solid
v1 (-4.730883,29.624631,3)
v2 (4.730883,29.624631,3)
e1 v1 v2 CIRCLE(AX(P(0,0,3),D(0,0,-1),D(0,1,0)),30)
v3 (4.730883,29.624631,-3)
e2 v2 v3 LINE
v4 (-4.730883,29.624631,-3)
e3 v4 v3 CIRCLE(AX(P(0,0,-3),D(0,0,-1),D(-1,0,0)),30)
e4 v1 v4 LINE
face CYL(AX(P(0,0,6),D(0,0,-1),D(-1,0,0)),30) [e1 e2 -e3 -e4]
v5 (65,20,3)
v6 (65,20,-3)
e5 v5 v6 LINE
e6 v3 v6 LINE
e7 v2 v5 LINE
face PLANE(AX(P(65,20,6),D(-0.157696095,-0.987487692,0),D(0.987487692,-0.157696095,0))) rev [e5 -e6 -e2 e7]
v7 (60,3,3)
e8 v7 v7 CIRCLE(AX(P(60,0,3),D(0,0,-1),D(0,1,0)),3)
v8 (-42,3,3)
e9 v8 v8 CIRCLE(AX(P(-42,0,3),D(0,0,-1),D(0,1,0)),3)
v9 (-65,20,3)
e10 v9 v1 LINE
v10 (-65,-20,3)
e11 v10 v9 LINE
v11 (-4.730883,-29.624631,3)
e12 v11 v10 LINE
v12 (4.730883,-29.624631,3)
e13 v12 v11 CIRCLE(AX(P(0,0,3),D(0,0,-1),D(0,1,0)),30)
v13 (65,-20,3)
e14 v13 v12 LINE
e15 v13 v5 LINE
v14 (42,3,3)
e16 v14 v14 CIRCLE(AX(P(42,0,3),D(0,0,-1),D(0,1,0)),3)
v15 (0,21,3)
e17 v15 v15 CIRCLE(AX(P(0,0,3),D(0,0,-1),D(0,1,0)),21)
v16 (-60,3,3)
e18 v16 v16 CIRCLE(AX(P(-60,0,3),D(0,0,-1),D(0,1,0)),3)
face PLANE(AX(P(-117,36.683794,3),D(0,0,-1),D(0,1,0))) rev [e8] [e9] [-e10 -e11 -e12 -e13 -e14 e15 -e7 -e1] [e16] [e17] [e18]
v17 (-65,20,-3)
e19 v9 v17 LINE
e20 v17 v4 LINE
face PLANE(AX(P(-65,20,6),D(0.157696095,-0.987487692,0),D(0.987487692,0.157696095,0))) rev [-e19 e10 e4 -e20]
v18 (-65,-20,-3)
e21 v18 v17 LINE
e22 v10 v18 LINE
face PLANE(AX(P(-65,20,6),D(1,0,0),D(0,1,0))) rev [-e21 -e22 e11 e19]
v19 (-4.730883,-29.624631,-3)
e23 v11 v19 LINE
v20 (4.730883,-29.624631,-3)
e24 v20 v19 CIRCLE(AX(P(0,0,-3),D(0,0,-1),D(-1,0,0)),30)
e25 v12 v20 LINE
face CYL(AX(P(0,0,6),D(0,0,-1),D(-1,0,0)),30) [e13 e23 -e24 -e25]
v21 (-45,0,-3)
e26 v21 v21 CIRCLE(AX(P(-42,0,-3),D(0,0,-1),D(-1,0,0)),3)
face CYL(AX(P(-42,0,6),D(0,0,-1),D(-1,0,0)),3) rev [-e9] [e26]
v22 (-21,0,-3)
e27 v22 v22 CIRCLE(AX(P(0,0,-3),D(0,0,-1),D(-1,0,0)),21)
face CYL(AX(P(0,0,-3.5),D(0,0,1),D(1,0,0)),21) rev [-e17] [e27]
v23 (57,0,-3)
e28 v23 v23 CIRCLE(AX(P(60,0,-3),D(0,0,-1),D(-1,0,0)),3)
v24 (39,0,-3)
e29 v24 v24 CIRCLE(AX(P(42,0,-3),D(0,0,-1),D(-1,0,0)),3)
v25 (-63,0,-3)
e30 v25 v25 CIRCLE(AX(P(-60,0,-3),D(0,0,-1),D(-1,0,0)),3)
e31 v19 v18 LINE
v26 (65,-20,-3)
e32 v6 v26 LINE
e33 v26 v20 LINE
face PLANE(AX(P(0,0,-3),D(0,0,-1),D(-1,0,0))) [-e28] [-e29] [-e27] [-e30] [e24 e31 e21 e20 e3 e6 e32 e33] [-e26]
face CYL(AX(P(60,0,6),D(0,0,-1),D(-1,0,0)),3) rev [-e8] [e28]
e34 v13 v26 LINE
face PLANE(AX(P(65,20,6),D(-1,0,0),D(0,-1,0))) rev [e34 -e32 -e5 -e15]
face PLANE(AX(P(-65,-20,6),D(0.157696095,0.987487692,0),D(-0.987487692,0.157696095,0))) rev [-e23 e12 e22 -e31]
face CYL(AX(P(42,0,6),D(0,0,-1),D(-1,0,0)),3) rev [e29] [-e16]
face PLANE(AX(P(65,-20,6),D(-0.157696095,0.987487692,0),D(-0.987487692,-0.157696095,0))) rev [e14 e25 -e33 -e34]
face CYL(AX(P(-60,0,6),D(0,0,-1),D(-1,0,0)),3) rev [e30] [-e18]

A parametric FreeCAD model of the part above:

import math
import FreeCAD as App
import Part
import Sketcher

doc = App.newDocument("Part")
body = doc.addObject("PartDesign::Body", "Body")

sketch1 = body.newObject("Sketcher::SketchObject", "Sketch")
sketch1.AttachmentSupport = (doc.getObject("XY_Plane"), [""])
sketch1.MapMode = "FlatFace"
sketch1.addGeometry([
    Part.LineSegment(App.Vector(-65, 20, 0), App.Vector(-65, -20, 0)),
    Part.LineSegment(App.Vector(-65, -20, 0), App.Vector(-4.7, -29.6, 0)),
    Part.ArcOfCircle(Part.Circle(App.Vector(0, 0, 0), App.Vector(0, 0, 1), 30), math.radians(-99.07), math.radians(-80.93)),
    Part.LineSegment(App.Vector(4.7, -29.6, 0), App.Vector(65, -20, 0)),
    Part.LineSegment(App.Vector(65, -20, 0), App.Vector(65, 20, 0)),
    Part.LineSegment(App.Vector(65, 20, 0), App.Vector(4.7, 29.6, 0)),
    Part.ArcOfCircle(Part.Circle(App.Vector(0, 0, 0), App.Vector(0, 0, 1), 30), math.radians(80.93), math.radians(99.07)),
    Part.LineSegment(App.Vector(-4.7, 29.6, 0), App.Vector(-65, 20, 0)),
    Part.Circle(App.Vector(-60, 0, 0), App.Vector(0, 0, 1), 3),
    Part.Circle(App.Vector(60, 0, 0), App.Vector(0, 0, 1), 3),
    Part.Circle(App.Vector(-42, 0, 0), App.Vector(0, 0, 1), 3),
    Part.Circle(App.Vector(0, 0, 0), App.Vector(0, 0, 1), 16),
    Part.Circle(App.Vector(42, 0, 0), App.Vector(0, 0, 1), 3),
], False)
sketch1.addConstraint([
    Sketcher.Constraint("Coincident", 0, 2, 1, 1),
    Sketcher.Constraint("Tangent", 1, 2, 2, 1),
    Sketcher.Constraint("Tangent", 2, 2, 3, 1),
    Sketcher.Constraint("Coincident", 3, 2, 4, 1),
    Sketcher.Constraint("Coincident", 4, 2, 5, 1),
    Sketcher.Constraint("Tangent", 5, 2, 6, 1),
    Sketcher.Constraint("Tangent", 6, 2, 7, 1),
    Sketcher.Constraint("Coincident", 7, 2, 0, 1),
    Sketcher.Constraint("Vertical", 0),
    Sketcher.Constraint("Vertical", 4),
    Sketcher.Constraint("Coincident", 2, 3, -1, 1),
    Sketcher.Constraint("Coincident", 6, 3, -1, 1),
    Sketcher.Constraint("Coincident", 11, 3, -1, 1),
    Sketcher.Constraint("Equal", 2, 6),
    Sketcher.Constraint("Equal", 8, 9),
    Sketcher.Constraint("Equal", 9, 10),
    Sketcher.Constraint("Equal", 10, 12),
    Sketcher.Constraint("Symmetric", 8, 3, 9, 3, -1, 1),
    Sketcher.Constraint("Symmetric", 10, 3, 12, 3, -1, 1),
    Sketcher.Constraint("Symmetric", 0, 2, 4, 2, -1, 1),
    Sketcher.Constraint("PointOnObject", 8, 3, -1),
    Sketcher.Constraint("PointOnObject", 10, 3, -1),
    Sketcher.Constraint("Parallel", 3, 7),
    Sketcher.Constraint("Horizontal", 1, 2, 2, 2),
    Sketcher.Constraint("Diameter", 8, 6.0),
    Sketcher.Constraint("Diameter", 11, 32.0),
    Sketcher.Constraint("Radius", 2, 30.0),
    Sketcher.Constraint("DistanceY", 0, 2, 0, 1, 40.0),
    Sketcher.Constraint("DistanceX", 8, 3, -1, 1, 60.0),
    Sketcher.Constraint("DistanceX", 10, 3, -1, 1, 42.0),
    Sketcher.Constraint("DistanceX", 0, 2, -1, 1, 65.0),
])
pad1 = body.newObject("PartDesign::Pad", "Pad")
pad1.Profile = sketch1
pad1.Length = 6

sketch2 = body.newObject("Sketcher::SketchObject", "Sketch001")
sketch2.AttachmentSupport = (doc.getObject("XY_Plane"), [""])
sketch2.MapMode = "FlatFace"
sketch2.AttachmentOffset = App.Placement(App.Vector(0, 0, -3.5), App.Rotation())
sketch2.addGeometry([
    Part.Circle(App.Vector(0, 0, 0), App.Vector(0, 0, 1), 30),
    Part.Circle(App.Vector(0, 0, 0), App.Vector(0, 0, 1), 21),
], False)
sketch2.addConstraint([
    Sketcher.Constraint("Coincident", 0, 3, -1, 1),
    Sketcher.Constraint("Coincident", 1, 3, -1, 1),
    Sketcher.Constraint("Diameter", 0, 60.0),
    Sketcher.Constraint("Diameter", 1, 42.0),
])
pad2 = body.newObject("PartDesign::Pad", "Pad001")
pad2.Profile = sketch2
pad2.Length = 3.5

sketch3 = body.newObject("Sketcher::SketchObject", "Sketch002")
sketch3.AttachmentSupport = (doc.getObject("XY_Plane"), [""])
sketch3.MapMode = "FlatFace"
sketch3.AttachmentOffset = App.Placement(App.Vector(0, 0, -3.5), App.Rotation())
sketch3.addGeometry([
    Part.LineSegment(App.Vector(-4.7, -29.6, 0), App.Vector(-65, -20, 0)),
    Part.LineSegment(App.Vector(-65, -20, 0), App.Vector(-65, 20, 0)),
    Part.LineSegment(App.Vector(-65, 20, 0), App.Vector(-4.7, 29.6, 0)),
    Part.ArcOfCircle(Part.Circle(App.Vector(0, 0, 0), App.Vector(0, 0, 1), 30), math.radians(99), math.radians(261)),
    Part.Circle(App.Vector(-60, 0, 0), App.Vector(0, 0, 1), 3),
    Part.Circle(App.Vector(-42, 0, 0), App.Vector(0, 0, 1), 3),
    Part.LineSegment(App.Vector(4.7, 29.6, 0), App.Vector(65, 20, 0)),
    Part.LineSegment(App.Vector(65, 20, 0), App.Vector(65, -20, 0)),
    Part.LineSegment(App.Vector(65, -20, 0), App.Vector(4.7, -29.6, 0)),
    Part.ArcOfCircle(Part.Circle(App.Vector(0, 0, 0), App.Vector(0, 0, 1), 30), math.radians(-81), math.radians(81)),
    Part.Circle(App.Vector(60, 0, 0), App.Vector(0, 0, 1), 3),
    Part.Circle(App.Vector(42, 0, 0), App.Vector(0, 0, 1), 3),
], False)
sketch3.addConstraint([
    Sketcher.Constraint("Coincident", 0, 2, 1, 1),
    Sketcher.Constraint("Coincident", 1, 2, 2, 1),
    Sketcher.Constraint("Tangent", 2, 2, 3, 1),
    Sketcher.Constraint("Tangent", 3, 2, 0, 1),
    Sketcher.Constraint("Coincident", 6, 2, 7, 1),
    Sketcher.Constraint("Coincident", 7, 2, 8, 1),
    Sketcher.Constraint("Tangent", 8, 2, 9, 1),
    Sketcher.Constraint("Tangent", 9, 2, 6, 1),
    Sketcher.Constraint("Vertical", 1),
    Sketcher.Constraint("Vertical", 7),
    Sketcher.Constraint("Coincident", 3, 3, -1, 1),
    Sketcher.Constraint("Coincident", 9, 3, -1, 1),
    Sketcher.Constraint("Equal", 4, 5),
    Sketcher.Constraint("Equal", 3, 9),
    Sketcher.Constraint("Equal", 5, 10),
    Sketcher.Constraint("Equal", 10, 11),
    Sketcher.Constraint("Symmetric", 4, 3, 10, 3, -1, 1),
    Sketcher.Constraint("Symmetric", 5, 3, 11, 3, -1, 1),
    Sketcher.Constraint("Symmetric", 0, 2, 6, 2, -1, 1),
    Sketcher.Constraint("PointOnObject", 4, 3, -1),
    Sketcher.Constraint("PointOnObject", 5, 3, -1),
    Sketcher.Constraint("Parallel", 2, 8),
    Sketcher.Constraint("Horizontal", 1, 2, 6, 2),
    Sketcher.Constraint("Diameter", 4, 6.0),
    Sketcher.Constraint("Radius", 3, 30.0),
    Sketcher.Constraint("DistanceY", 1, 1, 1, 2, 40.0),
    Sketcher.Constraint("DistanceX", 4, 3, -1, 1, 60.0),
    Sketcher.Constraint("DistanceX", 5, 3, -1, 1, 42.0),
    Sketcher.Constraint("DistanceX", 0, 2, -1, 1, 65.0),
])
pad3 = body.newObject("PartDesign::Pad", "Pad002")
pad3.Profile = sketch3
pad3.Length = 3.5

sketch4 = body.newObject("Sketcher::SketchObject", "Sketch003")
sketch4.AttachmentSupport = (doc.getObject("XY_Plane"), [""])
sketch4.MapMode = "FlatFace"
sketch4.AttachmentOffset = App.Placement(App.Vector(0, 0, -3.5), App.Rotation())
sketch4.addGeometry([
    Part.LineSegment(App.Vector(4.7, 29.6, 0), App.Vector(65, 20, 0)),
    Part.LineSegment(App.Vector(65, 20, 0), App.Vector(65, -20, 0)),
    Part.LineSegment(App.Vector(65, -20, 0), App.Vector(4.7, -29.6, 0)),
    Part.ArcOfCircle(Part.Circle(App.Vector(0, 0, 0), App.Vector(0, 0, 1), 30), math.radians(-99.07), math.radians(-80.93)),
    Part.LineSegment(App.Vector(-4.7, -29.6, 0), App.Vector(-65, -20, 0)),
    Part.LineSegment(App.Vector(-65, -20, 0), App.Vector(-65, 20, 0)),
    Part.LineSegment(App.Vector(-65, 20, 0), App.Vector(-4.7, 29.6, 0)),
    Part.ArcOfCircle(Part.Circle(App.Vector(0, 0, 0), App.Vector(0, 0, 1), 30), math.radians(80.93), math.radians(99.07)),
    Part.Circle(App.Vector(60, 0, 0), App.Vector(0, 0, 1), 3),
    Part.Circle(App.Vector(-60, 0, 0), App.Vector(0, 0, 1), 3),
    Part.Circle(App.Vector(42, 0, 0), App.Vector(0, 0, 1), 3),
    Part.Circle(App.Vector(0, 0, 0), App.Vector(0, 0, 1), 21),
    Part.Circle(App.Vector(-42, 0, 0), App.Vector(0, 0, 1), 3),
], False)
sketch4.addConstraint([
    Sketcher.Constraint("Coincident", 0, 2, 1, 1),
    Sketcher.Constraint("Coincident", 1, 2, 2, 1),
    Sketcher.Constraint("Tangent", 2, 2, 3, 2),
    Sketcher.Constraint("Tangent", 3, 1, 4, 1),
    Sketcher.Constraint("Coincident", 4, 2, 5, 1),
    Sketcher.Constraint("Coincident", 5, 2, 6, 1),
    Sketcher.Constraint("Tangent", 6, 2, 7, 2),
    Sketcher.Constraint("Tangent", 7, 1, 0, 1),
    Sketcher.Constraint("Vertical", 1),
    Sketcher.Constraint("Vertical", 5),
    Sketcher.Constraint("Coincident", 3, 3, -1, 1),
    Sketcher.Constraint("Coincident", 7, 3, -1, 1),
    Sketcher.Constraint("Coincident", 11, 3, -1, 1),
    Sketcher.Constraint("Equal", 3, 7),
    Sketcher.Constraint("Equal", 8, 9),
    Sketcher.Constraint("Equal", 9, 10),
    Sketcher.Constraint("Equal", 10, 12),
    Sketcher.Constraint("Symmetric", 8, 3, 9, 3, -1, 1),
    Sketcher.Constraint("Symmetric", 10, 3, 12, 3, -1, 1),
    Sketcher.Constraint("Symmetric", 0, 2, 4, 2, -1, 1),
    Sketcher.Constraint("PointOnObject", 8, 3, -1),
    Sketcher.Constraint("PointOnObject", 10, 3, -1),
    Sketcher.Constraint("Parallel", 2, 6),
    Sketcher.Constraint("Horizontal", 2, 2, 3, 1),
    Sketcher.Constraint("Diameter", 8, 6.0),
    Sketcher.Constraint("Diameter", 11, 42.0),
    Sketcher.Constraint("Radius", 3, 30.0),
    Sketcher.Constraint("DistanceY", 1, 2, 1, 1, 40.0),
    Sketcher.Constraint("DistanceX", -1, 1, 8, 3, 60.0),
    Sketcher.Constraint("DistanceX", -1, 1, 10, 3, 42.0),
    Sketcher.Constraint("DistanceX", -1, 1, 0, 2, 65.0),
])
pocket1 = body.newObject("PartDesign::Pocket", "Pocket")
pocket1.Profile = sketch4
pocket1.Length = 0.5
pocket1.Reversed = True

sketch5 = body.newObject("Sketcher::SketchObject", "Sketch004")
sketch5.AttachmentSupport = (doc.getObject("YZ_Plane"), [""])
sketch5.MapMode = "FlatFace"
sketch5.AttachmentOffset = App.Placement(App.Vector(0, 0, 65), App.Rotation())
sketch5.addGeometry([
    Part.LineSegment(App.Vector(-32.3, 3, 0), App.Vector(36.7, 3, 0)),
    Part.LineSegment(App.Vector(36.7, 3, 0), App.Vector(36.7, 6, 0)),
    Part.LineSegment(App.Vector(36.7, 6, 0), App.Vector(-32.3, 6, 0)),
    Part.LineSegment(App.Vector(-32.3, 6, 0), App.Vector(-32.3, 3, 0)),
], False)
sketch5.addConstraint([
    Sketcher.Constraint("Coincident", 0, 2, 1, 1),
    Sketcher.Constraint("Coincident", 1, 2, 2, 1),
    Sketcher.Constraint("Coincident", 2, 2, 3, 1),
    Sketcher.Constraint("Coincident", 3, 2, 0, 1),
    Sketcher.Constraint("Horizontal", 0),
    Sketcher.Constraint("Vertical", 1),
    Sketcher.Constraint("Horizontal", 2),
    Sketcher.Constraint("Vertical", 3),
    Sketcher.Constraint("DistanceX", 0, 1, 0, 2, 69.0),
    Sketcher.Constraint("DistanceY", 1, 1, 1, 2, 3.0),
    Sketcher.Constraint("DistanceY", -1, 1, 0, 2, 3.0),
    Sketcher.Constraint("DistanceX", -1, 1, 0, 2, 36.683794),
])
pocket2 = body.newObject("PartDesign::Pocket", "Pocket001")
pocket2.Profile = sketch5
pocket2.Length = 182

sketch6 = body.newObject("Sketcher::SketchObject", "Sketch005")
sketch6.AttachmentSupport = (doc.getObject("XY_Plane"), [""])
sketch6.MapMode = "FlatFace"
sketch6.addGeometry(Part.Circle(App.Vector(0, 0, 0), App.Vector(0, 0, 1), 21), False)
sketch6.addConstraint([
    Sketcher.Constraint("Coincident", 0, 3, -1, 1),
    Sketcher.Constraint("Diameter", 0, 42.0),
])
pocket3 = body.newObject("PartDesign::Pocket", "Pocket002")
pocket3.Profile = sketch6
pocket3.Length = 10
pocket3.Reversed = True

doc.recompute()
